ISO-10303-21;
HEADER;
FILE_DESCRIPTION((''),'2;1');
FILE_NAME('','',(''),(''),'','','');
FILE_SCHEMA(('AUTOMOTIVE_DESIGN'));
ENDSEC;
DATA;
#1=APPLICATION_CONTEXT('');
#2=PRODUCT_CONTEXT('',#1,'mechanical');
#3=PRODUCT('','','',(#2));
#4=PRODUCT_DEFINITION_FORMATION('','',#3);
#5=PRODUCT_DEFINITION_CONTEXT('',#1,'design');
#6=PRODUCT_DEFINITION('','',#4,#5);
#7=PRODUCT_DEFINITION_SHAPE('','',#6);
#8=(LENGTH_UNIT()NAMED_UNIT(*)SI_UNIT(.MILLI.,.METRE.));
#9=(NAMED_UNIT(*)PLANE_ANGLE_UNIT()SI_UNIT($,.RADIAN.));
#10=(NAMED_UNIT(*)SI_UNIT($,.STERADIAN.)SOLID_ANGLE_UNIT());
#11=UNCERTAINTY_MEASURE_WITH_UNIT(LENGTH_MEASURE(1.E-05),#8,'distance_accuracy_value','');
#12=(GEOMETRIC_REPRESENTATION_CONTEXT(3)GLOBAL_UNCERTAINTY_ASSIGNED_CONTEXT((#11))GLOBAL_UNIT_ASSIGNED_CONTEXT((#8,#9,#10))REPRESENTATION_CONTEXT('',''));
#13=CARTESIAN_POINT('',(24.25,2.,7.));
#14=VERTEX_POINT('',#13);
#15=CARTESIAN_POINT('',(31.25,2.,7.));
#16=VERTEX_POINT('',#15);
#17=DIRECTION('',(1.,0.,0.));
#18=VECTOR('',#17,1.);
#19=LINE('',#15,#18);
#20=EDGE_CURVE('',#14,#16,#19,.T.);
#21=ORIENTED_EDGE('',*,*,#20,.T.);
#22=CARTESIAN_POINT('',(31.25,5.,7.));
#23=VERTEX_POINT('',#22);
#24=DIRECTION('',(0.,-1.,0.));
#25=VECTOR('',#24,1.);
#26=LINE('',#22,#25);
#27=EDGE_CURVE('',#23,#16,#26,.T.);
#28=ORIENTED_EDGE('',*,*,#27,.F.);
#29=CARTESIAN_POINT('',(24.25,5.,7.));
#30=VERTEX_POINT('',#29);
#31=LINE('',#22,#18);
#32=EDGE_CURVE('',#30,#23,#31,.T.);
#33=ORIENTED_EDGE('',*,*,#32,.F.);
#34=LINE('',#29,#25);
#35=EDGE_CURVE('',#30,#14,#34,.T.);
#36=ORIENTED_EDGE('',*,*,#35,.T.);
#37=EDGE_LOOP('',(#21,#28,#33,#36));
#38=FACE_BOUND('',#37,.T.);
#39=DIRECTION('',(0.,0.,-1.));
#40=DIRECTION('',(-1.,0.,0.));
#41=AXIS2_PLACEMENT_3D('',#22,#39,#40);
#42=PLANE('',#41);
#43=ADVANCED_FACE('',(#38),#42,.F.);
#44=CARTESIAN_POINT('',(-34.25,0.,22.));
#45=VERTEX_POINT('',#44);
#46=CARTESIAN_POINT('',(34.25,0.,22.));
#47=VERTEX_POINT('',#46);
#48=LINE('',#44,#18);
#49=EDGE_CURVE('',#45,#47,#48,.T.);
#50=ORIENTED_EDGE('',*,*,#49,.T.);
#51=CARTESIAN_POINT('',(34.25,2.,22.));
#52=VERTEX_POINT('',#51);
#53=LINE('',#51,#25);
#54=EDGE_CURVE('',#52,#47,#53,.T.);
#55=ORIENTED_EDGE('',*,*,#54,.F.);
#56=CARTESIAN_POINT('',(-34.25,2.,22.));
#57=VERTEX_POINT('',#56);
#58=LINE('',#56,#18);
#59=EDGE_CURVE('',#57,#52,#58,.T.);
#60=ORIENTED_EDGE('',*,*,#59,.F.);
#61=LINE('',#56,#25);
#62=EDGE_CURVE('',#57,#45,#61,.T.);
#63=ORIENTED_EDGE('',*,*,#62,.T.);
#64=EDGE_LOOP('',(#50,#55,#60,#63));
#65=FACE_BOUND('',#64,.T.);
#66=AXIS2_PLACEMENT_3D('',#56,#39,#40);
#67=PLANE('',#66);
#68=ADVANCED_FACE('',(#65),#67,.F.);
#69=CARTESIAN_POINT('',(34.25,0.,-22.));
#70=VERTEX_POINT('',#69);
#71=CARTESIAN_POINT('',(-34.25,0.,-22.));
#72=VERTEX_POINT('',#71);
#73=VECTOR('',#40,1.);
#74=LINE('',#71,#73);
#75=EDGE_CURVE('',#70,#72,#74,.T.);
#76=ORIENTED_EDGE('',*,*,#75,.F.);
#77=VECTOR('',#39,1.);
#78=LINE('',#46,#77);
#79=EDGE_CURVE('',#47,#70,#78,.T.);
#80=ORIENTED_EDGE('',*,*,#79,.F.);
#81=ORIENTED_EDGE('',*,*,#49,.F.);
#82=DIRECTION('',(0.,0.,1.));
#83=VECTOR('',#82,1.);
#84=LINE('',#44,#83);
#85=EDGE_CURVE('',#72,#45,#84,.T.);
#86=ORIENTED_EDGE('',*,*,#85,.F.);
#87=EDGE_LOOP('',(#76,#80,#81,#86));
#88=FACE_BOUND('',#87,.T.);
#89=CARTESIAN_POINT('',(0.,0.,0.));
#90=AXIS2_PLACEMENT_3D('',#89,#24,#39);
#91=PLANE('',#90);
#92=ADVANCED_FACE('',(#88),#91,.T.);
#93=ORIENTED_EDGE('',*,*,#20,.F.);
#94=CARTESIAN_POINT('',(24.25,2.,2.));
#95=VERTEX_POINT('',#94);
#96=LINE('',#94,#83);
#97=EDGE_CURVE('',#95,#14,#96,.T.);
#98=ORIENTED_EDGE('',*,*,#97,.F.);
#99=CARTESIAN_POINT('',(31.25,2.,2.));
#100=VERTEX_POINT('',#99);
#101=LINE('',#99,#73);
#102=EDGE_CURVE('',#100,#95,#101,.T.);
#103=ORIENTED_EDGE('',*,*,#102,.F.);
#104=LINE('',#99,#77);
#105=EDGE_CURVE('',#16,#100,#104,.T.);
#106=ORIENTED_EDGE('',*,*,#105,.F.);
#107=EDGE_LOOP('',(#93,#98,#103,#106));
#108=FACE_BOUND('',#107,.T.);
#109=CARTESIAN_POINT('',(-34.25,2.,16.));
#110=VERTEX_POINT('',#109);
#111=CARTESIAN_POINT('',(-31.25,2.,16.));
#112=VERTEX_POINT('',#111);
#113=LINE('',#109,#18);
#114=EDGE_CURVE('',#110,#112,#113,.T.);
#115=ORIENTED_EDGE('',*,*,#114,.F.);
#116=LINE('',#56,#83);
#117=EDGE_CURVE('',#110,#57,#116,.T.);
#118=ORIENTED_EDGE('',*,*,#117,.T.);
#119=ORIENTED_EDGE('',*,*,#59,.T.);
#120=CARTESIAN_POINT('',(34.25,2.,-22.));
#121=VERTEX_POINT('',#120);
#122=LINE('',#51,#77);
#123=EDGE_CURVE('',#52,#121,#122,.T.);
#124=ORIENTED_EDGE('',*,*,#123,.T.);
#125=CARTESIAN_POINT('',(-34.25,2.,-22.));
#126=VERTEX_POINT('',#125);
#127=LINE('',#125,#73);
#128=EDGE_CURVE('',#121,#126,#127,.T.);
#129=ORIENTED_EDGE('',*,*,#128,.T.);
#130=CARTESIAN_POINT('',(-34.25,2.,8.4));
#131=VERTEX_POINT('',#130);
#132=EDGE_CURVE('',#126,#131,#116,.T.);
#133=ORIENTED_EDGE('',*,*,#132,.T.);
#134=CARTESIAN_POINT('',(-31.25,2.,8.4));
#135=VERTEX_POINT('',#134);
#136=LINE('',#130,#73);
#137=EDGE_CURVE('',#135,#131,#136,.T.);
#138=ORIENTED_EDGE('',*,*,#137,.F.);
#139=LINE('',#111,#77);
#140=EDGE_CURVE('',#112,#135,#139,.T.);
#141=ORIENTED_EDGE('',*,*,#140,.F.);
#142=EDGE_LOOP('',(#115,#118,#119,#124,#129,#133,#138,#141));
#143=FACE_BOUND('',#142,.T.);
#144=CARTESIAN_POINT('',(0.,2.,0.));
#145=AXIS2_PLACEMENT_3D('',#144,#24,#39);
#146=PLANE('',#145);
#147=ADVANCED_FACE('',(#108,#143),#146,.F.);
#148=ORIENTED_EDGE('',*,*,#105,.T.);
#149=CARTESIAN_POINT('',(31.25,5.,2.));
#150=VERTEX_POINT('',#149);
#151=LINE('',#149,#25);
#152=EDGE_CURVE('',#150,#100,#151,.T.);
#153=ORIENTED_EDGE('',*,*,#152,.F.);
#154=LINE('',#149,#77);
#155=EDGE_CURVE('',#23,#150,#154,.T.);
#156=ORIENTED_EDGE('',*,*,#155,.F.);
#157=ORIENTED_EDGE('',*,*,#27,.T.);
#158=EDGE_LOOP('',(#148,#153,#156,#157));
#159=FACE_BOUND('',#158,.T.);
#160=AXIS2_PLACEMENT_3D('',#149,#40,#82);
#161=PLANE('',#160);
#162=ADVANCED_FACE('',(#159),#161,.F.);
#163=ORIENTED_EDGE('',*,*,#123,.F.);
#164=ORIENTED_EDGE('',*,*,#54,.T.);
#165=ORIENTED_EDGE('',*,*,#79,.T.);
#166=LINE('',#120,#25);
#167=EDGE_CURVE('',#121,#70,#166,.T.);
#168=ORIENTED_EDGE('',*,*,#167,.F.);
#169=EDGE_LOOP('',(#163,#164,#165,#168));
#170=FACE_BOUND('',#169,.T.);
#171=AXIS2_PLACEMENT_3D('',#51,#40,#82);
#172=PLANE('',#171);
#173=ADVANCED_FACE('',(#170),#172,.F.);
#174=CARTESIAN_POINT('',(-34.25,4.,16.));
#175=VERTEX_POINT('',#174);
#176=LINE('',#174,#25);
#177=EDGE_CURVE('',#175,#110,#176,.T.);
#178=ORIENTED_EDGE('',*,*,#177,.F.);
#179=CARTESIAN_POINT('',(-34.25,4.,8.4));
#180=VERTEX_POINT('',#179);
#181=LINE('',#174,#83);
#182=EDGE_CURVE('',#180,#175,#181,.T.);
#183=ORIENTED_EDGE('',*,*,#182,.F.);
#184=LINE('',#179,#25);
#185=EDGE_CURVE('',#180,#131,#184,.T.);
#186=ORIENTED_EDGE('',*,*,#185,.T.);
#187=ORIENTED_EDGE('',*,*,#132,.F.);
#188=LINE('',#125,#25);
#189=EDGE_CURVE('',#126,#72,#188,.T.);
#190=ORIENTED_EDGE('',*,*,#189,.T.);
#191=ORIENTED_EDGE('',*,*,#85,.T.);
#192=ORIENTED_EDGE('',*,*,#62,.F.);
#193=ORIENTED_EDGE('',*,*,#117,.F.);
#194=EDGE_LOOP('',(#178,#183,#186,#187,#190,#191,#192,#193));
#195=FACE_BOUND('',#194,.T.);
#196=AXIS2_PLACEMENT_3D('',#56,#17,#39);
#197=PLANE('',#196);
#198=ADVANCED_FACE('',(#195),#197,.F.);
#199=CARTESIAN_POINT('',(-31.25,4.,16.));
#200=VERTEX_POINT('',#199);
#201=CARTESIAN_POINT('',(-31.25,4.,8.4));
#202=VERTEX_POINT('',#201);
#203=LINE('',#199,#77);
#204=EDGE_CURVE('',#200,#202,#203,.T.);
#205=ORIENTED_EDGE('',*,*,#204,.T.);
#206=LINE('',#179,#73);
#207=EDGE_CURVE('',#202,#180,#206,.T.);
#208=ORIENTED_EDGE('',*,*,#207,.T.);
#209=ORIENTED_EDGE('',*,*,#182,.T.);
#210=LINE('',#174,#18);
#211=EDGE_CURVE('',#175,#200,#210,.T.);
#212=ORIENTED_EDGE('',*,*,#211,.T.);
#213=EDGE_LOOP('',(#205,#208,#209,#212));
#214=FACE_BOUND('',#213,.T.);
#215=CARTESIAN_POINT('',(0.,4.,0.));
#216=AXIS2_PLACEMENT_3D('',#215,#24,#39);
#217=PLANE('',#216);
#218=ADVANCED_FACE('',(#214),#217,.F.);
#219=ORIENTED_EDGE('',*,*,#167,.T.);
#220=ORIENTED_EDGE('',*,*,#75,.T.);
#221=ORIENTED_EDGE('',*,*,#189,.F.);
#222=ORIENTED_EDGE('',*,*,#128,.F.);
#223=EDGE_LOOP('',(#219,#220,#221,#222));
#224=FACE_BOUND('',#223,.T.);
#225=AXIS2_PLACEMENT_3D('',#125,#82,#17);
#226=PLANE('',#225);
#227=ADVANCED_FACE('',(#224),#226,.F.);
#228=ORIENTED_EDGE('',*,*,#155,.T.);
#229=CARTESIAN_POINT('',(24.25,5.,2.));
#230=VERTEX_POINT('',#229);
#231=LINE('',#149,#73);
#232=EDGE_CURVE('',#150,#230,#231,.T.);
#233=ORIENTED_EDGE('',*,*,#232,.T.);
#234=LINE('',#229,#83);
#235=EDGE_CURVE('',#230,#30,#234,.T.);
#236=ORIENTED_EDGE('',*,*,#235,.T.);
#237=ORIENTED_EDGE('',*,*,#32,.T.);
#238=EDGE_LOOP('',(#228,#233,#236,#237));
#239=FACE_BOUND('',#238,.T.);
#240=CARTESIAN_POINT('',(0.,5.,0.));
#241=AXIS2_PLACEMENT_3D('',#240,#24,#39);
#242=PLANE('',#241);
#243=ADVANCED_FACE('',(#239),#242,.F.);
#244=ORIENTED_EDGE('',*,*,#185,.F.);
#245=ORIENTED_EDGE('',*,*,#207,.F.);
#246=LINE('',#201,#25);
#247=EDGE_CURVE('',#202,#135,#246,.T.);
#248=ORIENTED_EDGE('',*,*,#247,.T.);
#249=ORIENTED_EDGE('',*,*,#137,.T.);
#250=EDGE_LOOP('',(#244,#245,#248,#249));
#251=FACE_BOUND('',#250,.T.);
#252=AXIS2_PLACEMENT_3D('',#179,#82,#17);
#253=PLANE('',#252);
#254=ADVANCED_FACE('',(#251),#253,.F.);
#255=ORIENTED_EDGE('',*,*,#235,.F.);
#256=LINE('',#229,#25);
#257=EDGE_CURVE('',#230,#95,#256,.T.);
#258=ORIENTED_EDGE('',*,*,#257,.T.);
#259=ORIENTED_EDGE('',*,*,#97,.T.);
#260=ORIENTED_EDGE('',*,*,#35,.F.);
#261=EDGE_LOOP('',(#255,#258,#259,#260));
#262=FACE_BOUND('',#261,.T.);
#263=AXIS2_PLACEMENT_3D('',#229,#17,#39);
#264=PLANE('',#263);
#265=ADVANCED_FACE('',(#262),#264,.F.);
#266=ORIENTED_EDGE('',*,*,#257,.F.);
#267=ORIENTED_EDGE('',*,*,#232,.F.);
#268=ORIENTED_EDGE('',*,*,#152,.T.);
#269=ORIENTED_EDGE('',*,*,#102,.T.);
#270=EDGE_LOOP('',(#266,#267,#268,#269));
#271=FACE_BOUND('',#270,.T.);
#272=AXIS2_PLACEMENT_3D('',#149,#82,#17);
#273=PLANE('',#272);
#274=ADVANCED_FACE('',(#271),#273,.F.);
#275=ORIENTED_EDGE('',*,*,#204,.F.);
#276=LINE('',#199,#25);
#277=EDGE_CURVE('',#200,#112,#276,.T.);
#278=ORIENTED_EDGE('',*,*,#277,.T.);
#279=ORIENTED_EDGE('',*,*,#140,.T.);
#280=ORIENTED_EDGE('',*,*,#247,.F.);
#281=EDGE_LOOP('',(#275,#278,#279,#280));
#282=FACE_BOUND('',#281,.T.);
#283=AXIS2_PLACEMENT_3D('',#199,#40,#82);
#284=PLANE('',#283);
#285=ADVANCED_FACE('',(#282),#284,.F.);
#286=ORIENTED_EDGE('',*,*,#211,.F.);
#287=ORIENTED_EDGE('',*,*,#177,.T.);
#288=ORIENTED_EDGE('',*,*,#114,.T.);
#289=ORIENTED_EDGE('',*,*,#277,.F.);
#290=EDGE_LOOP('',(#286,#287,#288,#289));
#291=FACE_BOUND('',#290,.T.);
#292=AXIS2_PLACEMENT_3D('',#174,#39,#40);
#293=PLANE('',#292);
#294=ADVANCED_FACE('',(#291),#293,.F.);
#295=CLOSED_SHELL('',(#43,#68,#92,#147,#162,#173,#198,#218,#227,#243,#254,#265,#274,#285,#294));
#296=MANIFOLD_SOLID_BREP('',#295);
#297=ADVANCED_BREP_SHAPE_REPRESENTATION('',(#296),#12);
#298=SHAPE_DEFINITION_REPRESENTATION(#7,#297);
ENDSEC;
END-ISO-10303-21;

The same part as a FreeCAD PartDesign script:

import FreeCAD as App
import Part
import Sketcher
Q = App.Units.Quantity


def add_polygon(sketch, points):
    """Adds a closed chain of lines whose ends are joined by coincident constraints."""
    first, n = sketch.GeometryCount, len(points)
    for a, b in zip(points, points[1:] + points[:1]):
        sketch.addGeometry(Part.LineSegment(App.Vector(*a, 0), App.Vector(*b, 0)), False)
    for i in range(n):
        sketch.addConstraint(Sketcher.Constraint("Coincident", first + i, 2, first + (i + 1) % n, 1))

doc = App.newDocument("Part")
body = doc.addObject("PartDesign::Body", "Body")

# Sketch on XZ plane
sketch1 = body.newObject("Sketcher::SketchObject", "Sketch")
sketch1.AttachmentSupport = (doc.getObject("XZ_Plane"), [""])
sketch1.MapMode = "FlatFace"
add_polygon(sketch1, [(-34, -22), (-34, 22), (34, 22), (34, -22)])  # lines 0-3
sketch1.addConstraint(Sketcher.Constraint("Vertical", 0))
sketch1.addConstraint(Sketcher.Constraint("Horizontal", 1))
sketch1.addConstraint(Sketcher.Constraint("Vertical", 2))
sketch1.addConstraint(Sketcher.Constraint("Horizontal", 3))
sketch1.addConstraint(Sketcher.Constraint("Symmetric", 0, 2, 2, 2, -1, 1))
sketch1.addConstraint(Sketcher.Constraint("DistanceY", 0, 1, 0, 2, Q("44 mm")))
sketch1.addConstraint(Sketcher.Constraint("DistanceX", 1, 1, 1, 2, Q("68.5 mm")))
pad1 = body.newObject("PartDesign::Pad", "Pad")
pad1.Profile = sketch1
pad1.Length = 2
pad1.Reversed = True

# Sketch on XZ plane
sketch2 = body.newObject("Sketcher::SketchObject", "Sketch001")
sketch2.AttachmentSupport = (doc.getObject("XZ_Plane"), [""])
sketch2.MapMode = "FlatFace"
sketch2.AttachmentOffset = App.Placement(App.Vector(0, 0, -2), App.Rotation())
add_polygon(sketch2, [(24, 2), (24, 7), (31, 7), (31, 2)])  # lines 0-3
sketch2.addConstraint(Sketcher.Constraint("Vertical", 0))
sketch2.addConstraint(Sketcher.Constraint("Horizontal", 1))
sketch2.addConstraint(Sketcher.Constraint("Vertical", 2))
sketch2.addConstraint(Sketcher.Constraint("Horizontal", 3))
sketch2.addConstraint(Sketcher.Constraint("DistanceX", 1, 1, 1, 2, Q("7 mm")))
sketch2.addConstraint(Sketcher.Constraint("DistanceY", 0, 1, 0, 2, Q("5 mm")))
sketch2.addConstraint(Sketcher.Constraint("DistanceY", -1, 1, 0, 2, Q("7 mm")))
sketch2.addConstraint(Sketcher.Constraint("DistanceX", -1, 1, 0, 2, Q("24.25 mm")))
pad2 = body.newObject("PartDesign::Pad", "Pad001")
pad2.Profile = sketch2
pad2.Length = 3
pad2.Reversed = True

# Sketch on XZ plane
sketch3 = body.newObject("Sketcher::SketchObject", "Sketch002")
sketch3.AttachmentSupport = (doc.getObject("XZ_Plane"), [""])
sketch3.MapMode = "FlatFace"
sketch3.AttachmentOffset = App.Placement(App.Vector(0, 0, -2), App.Rotation())
add_polygon(sketch3, [(-34.2, 8.4), (-34.2, 16), (-31.2, 16), (-31.2, 8.4)])  # lines 0-3
sketch3.addConstraint(Sketcher.Constraint("Vertical", 0))
sketch3.addConstraint(Sketcher.Constraint("Horizontal", 1))
sketch3.addConstraint(Sketcher.Constraint("Vertical", 2))
sketch3.addConstraint(Sketcher.Constraint("Horizontal", 3))
sketch3.addConstraint(Sketcher.Constraint("DistanceX", 1, 1, 1, 2, Q("3 mm")))
sketch3.addConstraint(Sketcher.Constraint("DistanceY", 0, 1, 0, 2, Q("7.6 mm")))
sketch3.addConstraint(Sketcher.Constraint("DistanceY", -1, 1, 0, 2, Q("16 mm")))
sketch3.addConstraint(Sketcher.Constraint("DistanceX", 0, 2, -1, 1, Q("34.25 mm")))
pad3 = body.newObject("PartDesign::Pad", "Pad002")
pad3.Profile = sketch3
pad3.Length = 2
pad3.Reversed = True

doc.recompute()
